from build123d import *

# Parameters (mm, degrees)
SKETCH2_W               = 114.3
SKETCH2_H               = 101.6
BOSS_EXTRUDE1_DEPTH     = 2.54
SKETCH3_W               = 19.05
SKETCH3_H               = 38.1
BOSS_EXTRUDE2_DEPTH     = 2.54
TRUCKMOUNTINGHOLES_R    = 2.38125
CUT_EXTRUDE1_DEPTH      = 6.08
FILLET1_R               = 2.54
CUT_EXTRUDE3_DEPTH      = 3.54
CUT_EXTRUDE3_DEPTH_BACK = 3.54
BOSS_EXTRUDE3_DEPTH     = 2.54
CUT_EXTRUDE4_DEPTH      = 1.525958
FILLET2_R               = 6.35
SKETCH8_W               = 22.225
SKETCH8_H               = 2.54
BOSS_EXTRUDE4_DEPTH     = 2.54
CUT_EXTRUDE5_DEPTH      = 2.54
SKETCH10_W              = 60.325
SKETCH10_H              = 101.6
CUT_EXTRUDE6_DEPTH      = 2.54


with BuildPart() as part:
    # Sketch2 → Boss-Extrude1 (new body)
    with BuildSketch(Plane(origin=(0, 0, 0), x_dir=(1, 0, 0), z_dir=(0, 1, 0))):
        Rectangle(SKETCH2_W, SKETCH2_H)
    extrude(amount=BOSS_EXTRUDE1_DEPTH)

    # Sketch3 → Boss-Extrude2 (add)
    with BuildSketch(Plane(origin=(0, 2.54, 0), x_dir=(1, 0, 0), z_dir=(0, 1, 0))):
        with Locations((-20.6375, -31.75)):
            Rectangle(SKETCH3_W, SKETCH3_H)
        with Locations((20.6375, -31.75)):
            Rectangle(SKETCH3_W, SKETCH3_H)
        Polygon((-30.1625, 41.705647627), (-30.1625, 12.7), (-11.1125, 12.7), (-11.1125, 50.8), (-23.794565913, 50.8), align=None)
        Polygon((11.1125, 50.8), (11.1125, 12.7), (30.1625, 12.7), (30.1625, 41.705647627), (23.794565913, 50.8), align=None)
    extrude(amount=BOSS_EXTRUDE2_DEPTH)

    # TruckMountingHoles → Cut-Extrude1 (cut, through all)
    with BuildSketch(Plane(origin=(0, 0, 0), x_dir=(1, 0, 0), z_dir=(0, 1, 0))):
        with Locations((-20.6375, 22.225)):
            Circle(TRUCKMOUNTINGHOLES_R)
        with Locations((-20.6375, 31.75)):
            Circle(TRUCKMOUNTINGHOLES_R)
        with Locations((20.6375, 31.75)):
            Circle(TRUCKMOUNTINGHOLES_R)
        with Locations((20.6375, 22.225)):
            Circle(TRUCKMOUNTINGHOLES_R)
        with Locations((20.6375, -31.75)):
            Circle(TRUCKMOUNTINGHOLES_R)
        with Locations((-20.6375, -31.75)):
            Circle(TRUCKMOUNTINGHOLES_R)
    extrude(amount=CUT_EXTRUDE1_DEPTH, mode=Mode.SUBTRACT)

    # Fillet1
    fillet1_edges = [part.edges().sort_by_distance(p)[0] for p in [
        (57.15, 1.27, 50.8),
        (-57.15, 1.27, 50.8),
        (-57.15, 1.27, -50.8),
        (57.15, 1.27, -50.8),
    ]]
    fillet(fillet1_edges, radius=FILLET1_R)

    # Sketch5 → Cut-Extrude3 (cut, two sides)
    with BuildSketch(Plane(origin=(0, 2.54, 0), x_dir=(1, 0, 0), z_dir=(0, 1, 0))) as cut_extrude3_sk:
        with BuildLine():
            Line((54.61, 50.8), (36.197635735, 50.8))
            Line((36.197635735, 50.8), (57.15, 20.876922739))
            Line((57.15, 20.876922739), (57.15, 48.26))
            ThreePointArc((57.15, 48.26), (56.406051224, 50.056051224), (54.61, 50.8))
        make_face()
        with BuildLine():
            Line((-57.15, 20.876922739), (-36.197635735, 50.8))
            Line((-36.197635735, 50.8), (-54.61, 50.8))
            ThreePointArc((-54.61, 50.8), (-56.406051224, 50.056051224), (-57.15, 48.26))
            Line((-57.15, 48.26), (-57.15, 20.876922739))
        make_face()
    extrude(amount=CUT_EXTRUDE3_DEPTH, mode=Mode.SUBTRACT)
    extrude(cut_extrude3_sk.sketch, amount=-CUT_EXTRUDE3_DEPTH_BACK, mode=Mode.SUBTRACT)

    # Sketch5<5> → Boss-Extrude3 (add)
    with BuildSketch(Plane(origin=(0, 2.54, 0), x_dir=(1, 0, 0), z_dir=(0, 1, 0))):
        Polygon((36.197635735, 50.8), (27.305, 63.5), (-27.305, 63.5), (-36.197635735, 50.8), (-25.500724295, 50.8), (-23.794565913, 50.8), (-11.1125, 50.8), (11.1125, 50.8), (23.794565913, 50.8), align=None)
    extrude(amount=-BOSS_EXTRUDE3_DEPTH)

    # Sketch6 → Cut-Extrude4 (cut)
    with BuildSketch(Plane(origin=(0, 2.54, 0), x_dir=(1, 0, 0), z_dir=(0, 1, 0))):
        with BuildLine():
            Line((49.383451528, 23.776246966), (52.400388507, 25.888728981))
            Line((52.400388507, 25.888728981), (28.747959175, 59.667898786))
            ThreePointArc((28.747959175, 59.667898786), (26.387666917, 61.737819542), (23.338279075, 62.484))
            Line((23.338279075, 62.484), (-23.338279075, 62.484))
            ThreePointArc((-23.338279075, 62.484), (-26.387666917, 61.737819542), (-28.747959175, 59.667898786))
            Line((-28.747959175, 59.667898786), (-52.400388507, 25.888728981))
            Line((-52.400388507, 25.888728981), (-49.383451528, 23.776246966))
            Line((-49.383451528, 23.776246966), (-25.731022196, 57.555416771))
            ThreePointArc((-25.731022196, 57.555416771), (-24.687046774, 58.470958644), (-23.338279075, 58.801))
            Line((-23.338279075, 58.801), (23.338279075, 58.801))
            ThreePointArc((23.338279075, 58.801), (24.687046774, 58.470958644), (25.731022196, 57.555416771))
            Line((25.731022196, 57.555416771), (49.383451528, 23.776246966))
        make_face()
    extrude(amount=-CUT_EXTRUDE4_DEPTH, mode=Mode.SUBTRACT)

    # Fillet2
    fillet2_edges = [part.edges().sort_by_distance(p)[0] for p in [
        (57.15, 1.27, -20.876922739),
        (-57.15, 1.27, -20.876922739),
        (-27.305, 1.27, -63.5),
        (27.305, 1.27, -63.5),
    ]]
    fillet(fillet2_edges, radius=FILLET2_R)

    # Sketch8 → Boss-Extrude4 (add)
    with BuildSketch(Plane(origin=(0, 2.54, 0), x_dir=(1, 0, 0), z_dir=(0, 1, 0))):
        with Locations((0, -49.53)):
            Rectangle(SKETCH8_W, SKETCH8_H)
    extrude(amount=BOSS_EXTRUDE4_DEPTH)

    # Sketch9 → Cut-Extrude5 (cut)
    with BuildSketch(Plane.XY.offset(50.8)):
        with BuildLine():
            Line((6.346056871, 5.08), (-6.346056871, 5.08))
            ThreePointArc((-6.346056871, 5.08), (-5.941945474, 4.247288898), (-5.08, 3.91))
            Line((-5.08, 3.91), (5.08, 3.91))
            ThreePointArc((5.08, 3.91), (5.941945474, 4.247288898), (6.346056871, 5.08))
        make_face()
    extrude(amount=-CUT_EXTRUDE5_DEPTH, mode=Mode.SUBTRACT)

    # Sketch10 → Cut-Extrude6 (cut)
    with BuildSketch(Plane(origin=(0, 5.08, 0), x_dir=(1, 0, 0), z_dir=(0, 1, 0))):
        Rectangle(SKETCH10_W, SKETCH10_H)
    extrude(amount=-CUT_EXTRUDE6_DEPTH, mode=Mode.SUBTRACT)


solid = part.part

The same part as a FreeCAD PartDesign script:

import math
import FreeCAD as App
import Part
import Sketcher
from FreeCAD import Vector
Q = App.Units.Quantity


def edges_at(feature, points):
    """Names of the edges that pass closest to the given points."""
    edges = feature.Shape.Edges
    near = lambda p: min(range(len(edges)), key=lambda i: edges[i].distToShape(Part.Vertex(*p))[0])
    return sorted({f"Edge{near(p) + 1}" for p in points})

doc = App.newDocument("Part")
params = doc.addObject("Spreadsheet::Sheet", "Params")
for row, (alias, value) in enumerate([
    ("sketch1_height", "4 in"),
    ("sketch1_width", "4.5 in"),
    ("pad1_length", "0.1 in"),
    ("sketch2_height", "1.5 in"),
    ("sketch2_width", "0.75 in"),
    ("pad2_length", "0.1 in"),
    ("sketch3_diameter", "0.1875 in"),
    ("fillet_radius", "0.1 in"),
    ("sketch4_radius", "0.1 in"),
    ("sketch5_width", "2.15 in"),
    ("pad3_length", "0.1 in"),
    ("sketch6_radius", "0.26 in"),
    ("sketch6_radius2", "0.115 in"),
    ("pocket3_length", "1.525958 mm"),
    ("fillet2_radius", "0.25 in"),
    ("sketch7_height", "0.1 in"),
    ("sketch7_width", "0.875 in"),
    ("pad4_length", "0.1 in"),
    ("sketch8_radius", "0.05 in"),
    ("sketch8_width", "0.4 in"),
    ("pocket4_length", "0.1 in"),
    ("sketch9_height", "4 in"),
    ("sketch9_width", "2.375 in"),
    ("pocket5_length", "0.1 in"),
], start=1):
    params.set(f"A{row}", alias)
    params.set(f"B{row}", "=" + value)
    params.setAlias(f"B{row}", alias)

body = doc.addObject("PartDesign::Body", "Body")

# Sketch on XZ plane
sketch1 = body.newObject("Sketcher::SketchObject", "Sketch")
sketch1.AttachmentSupport = (doc.getObject("XZ_Plane"), [""])
sketch1.MapMode = "FlatFace"
sketch1.addGeometry(Part.LineSegment(Vector(-57.15, -50.8, 0), Vector(-57.15, 50.8, 0)), False)
sketch1.addGeometry(Part.LineSegment(Vector(-57.15, 50.8, 0), Vector(57.15, 50.8, 0)), False)
sketch1.addGeometry(Part.LineSegment(Vector(57.15, 50.8, 0), Vector(57.15, -50.8, 0)), False)
sketch1.addGeometry(Part.LineSegment(Vector(57.15, -50.8, 0), Vector(-57.15, -50.8, 0)), False)
sketch1.addConstraint(Sketcher.Constraint("Coincident", 0, 2, 1, 1))
sketch1.addConstraint(Sketcher.Constraint("Coincident", 1, 2, 2, 1))
sketch1.addConstraint(Sketcher.Constraint("Coincident", 2, 2, 3, 1))
sketch1.addConstraint(Sketcher.Constraint("Coincident", 3, 2, 0, 1))
sketch1.addConstraint(Sketcher.Constraint("Vertical", 0))
sketch1.addConstraint(Sketcher.Constraint("Horizontal", 1))
sketch1.addConstraint(Sketcher.Constraint("Vertical", 2))
sketch1.addConstraint(Sketcher.Constraint("Horizontal", 3))
sketch1.addConstraint(Sketcher.Constraint("Symmetric", 0, 2, 2, 2, -1, 1))
sketch1.addConstraint(Sketcher.Constraint("DistanceY", 0, 1, 0, 2, Q("4 in")))
sketch1.addConstraint(Sketcher.Constraint("DistanceX", 1, 1, 1, 2, Q("4.5 in")))
sketch1.setExpression("Constraints[9]", "Params.sketch1_height")
sketch1.setExpression("Constraints[10]", "Params.sketch1_width")
pad1 = body.newObject("PartDesign::Pad", "Pad")
pad1.Profile = sketch1
pad1.setExpression("Length", "Params.pad1_length")
pad1.Reversed = True

# Sketch on XZ plane
sketch2 = body.newObject("Sketcher::SketchObject", "Sketch001")
sketch2.AttachmentSupport = (doc.getObject("XZ_Plane"), [""])
sketch2.MapMode = "FlatFace"
sketch2.AttachmentOffset = App.Placement(Vector(0, 0, -0.1 * 25.4), App.Rotation())
sketch2.addGeometry(Part.LineSegment(Vector(-30.1625, 12.7, 0), Vector(-30.1625, 50.8, 0)), False)
sketch2.addGeometry(Part.LineSegment(Vector(-30.1625, 50.8, 0), Vector(-11.1125, 50.8, 0)), False)
sketch2.addGeometry(Part.LineSegment(Vector(-11.1125, 50.8, 0), Vector(-11.1125, 12.7, 0)), False)
sketch2.addGeometry(Part.LineSegment(Vector(-11.1125, 12.7, 0), Vector(-30.1625, 12.7, 0)), False)
sketch2.addGeometry(Part.LineSegment(Vector(11.1125, 12.7, 0), Vector(11.1125, 50.8, 0)), False)
sketch2.addGeometry(Part.LineSegment(Vector(11.1125, 50.8, 0), Vector(30.1625, 50.8, 0)), False)
sketch2.addGeometry(Part.LineSegment(Vector(30.1625, 50.8, 0), Vector(30.1625, 12.7, 0)), False)
sketch2.addGeometry(Part.LineSegment(Vector(30.1625, 12.7, 0), Vector(11.1125, 12.7, 0)), False)
sketch2.addGeometry(Part.LineSegment(Vector(-30.1625, -41.705648, 0), Vector(-30.1625, -12.7, 0)), False)
sketch2.addGeometry(Part.LineSegment(Vector(-30.1625, -12.7, 0), Vector(-11.1125, -12.7, 0)), False)
sketch2.addGeometry(Part.LineSegment(Vector(-11.1125, -12.7, 0), Vector(-11.1125, -50.8, 0)), False)
sketch2.addGeometry(Part.LineSegment(Vector(-11.1125, -50.8, 0), Vector(-23.794566, -50.8, 0)), False)
sketch2.addGeometry(Part.LineSegment(Vector(-23.794566, -50.8, 0), Vector(-30.1625, -41.705648, 0)), False)
sketch2.addGeometry(Part.LineSegment(Vector(11.1125, -50.8, 0), Vector(11.1125, -12.7, 0)), False)
sketch2.addGeometry(Part.LineSegment(Vector(11.1125, -12.7, 0), Vector(30.1625, -12.7, 0)), False)
sketch2.addGeometry(Part.LineSegment(Vector(30.1625, -12.7, 0), Vector(30.1625, -41.705648, 0)), False)
sketch2.addGeometry(Part.LineSegment(Vector(30.1625, -41.705648, 0), Vector(23.794566, -50.8, 0)), False)
sketch2.addGeometry(Part.LineSegment(Vector(23.794566, -50.8, 0), Vector(11.1125, -50.8, 0)), False)
sketch2.addConstraint(Sketcher.Constraint("Coincident", 0, 2, 1, 1))
sketch2.addConstraint(Sketcher.Constraint("Coincident", 1, 2, 2, 1))
sketch2.addConstraint(Sketcher.Constraint("Coincident", 2, 2, 3, 1))
sketch2.addConstraint(Sketcher.Constraint("Coincident", 3, 2, 0, 1))
sketch2.addConstraint(Sketcher.Constraint("Coincident", 4, 2, 5, 1))
sketch2.addConstraint(Sketcher.Constraint("Coincident", 5, 2, 6, 1))
sketch2.addConstraint(Sketcher.Constraint("Coincident", 6, 2, 7, 1))
sketch2.addConstraint(Sketcher.Constraint("Coincident", 7, 2, 4, 1))
sketch2.addConstraint(Sketcher.Constraint("Coincident", 8, 2, 9, 1))
sketch2.addConstraint(Sketcher.Constraint("Coincident", 9, 2, 10, 1))
sketch2.addConstraint(Sketcher.Constraint("Coincident", 10, 2, 11, 1))
sketch2.addConstraint(Sketcher.Constraint("Coincident", 11, 2, 12, 1))
sketch2.addConstraint(Sketcher.Constraint("Coincident", 12, 2, 8, 1))
sketch2.addConstraint(Sketcher.Constraint("Coincident", 13, 2, 14, 1))
sketch2.addConstraint(Sketcher.Constraint("Coincident", 14, 2, 15, 1))
sketch2.addConstraint(Sketcher.Constraint("Coincident", 15, 2, 16, 1))
sketch2.addConstraint(Sketcher.Constraint("Coincident", 16, 2, 17, 1))
sketch2.addConstraint(Sketcher.Constraint("Coincident", 17, 2, 13, 1))
sketch2.addConstraint(Sketcher.Constraint("Vertical", 0))
sketch2.addConstraint(Sketcher.Constraint("Horizontal", 1))
sketch2.addConstraint(Sketcher.Constraint("Vertical", 2))
sketch2.addConstraint(Sketcher.Constraint("Horizontal", 3))
sketch2.addConstraint(Sketcher.Constraint("Vertical", 4))
sketch2.addConstraint(Sketcher.Constraint("Horizontal", 5))
sketch2.addConstraint(Sketcher.Constraint("Vertical", 6))
sketch2.addConstraint(Sketcher.Constraint("Horizontal", 7))
sketch2.addConstraint(Sketcher.Constraint("Vertical", 8))
sketch2.addConstraint(Sketcher.Constraint("Horizontal", 9))
sketch2.addConstraint(Sketcher.Constraint("Vertical", 10))
sketch2.addConstraint(Sketcher.Constraint("Horizontal", 11))
sketch2.addConstraint(Sketcher.Constraint("Vertical", 13))
sketch2.addConstraint(Sketcher.Constraint("Horizontal", 14))
sketch2.addConstraint(Sketcher.Constraint("Vertical", 15))
sketch2.addConstraint(Sketcher.Constraint("Horizontal", 17))
sketch2.addConstraint(Sketcher.Constraint("Symmetric", 6, 2, 8, 2, -1, 1))
sketch2.addConstraint(Sketcher.Constraint("Symmetric", 4, 2, 10, 2, -1, 1))
sketch2.addConstraint(Sketcher.Constraint("Symmetric", 2, 2, 13, 2, -1, 1))
sketch2.addConstraint(Sketcher.Constraint("Symmetric", 1, 2, 4, 2, -2))
sketch2.addConstraint(Sketcher.Constraint("Symmetric", 3, 2, 6, 2, -2))
sketch2.addConstraint(Sketcher.Constraint("Symmetric", 12, 2, 15, 2, -2))
sketch2.addConstraint(Sketcher.Constraint("Symmetric", 11, 2, 16, 2, -2))
sketch2.addConstraint(Sketcher.Constraint("DistanceY", 0, 1, 0, 2, Q("1.5 in")))
sketch2.addConstraint(Sketcher.Constraint("DistanceY", -1, 1, 0, 2, Q("2 in")))
sketch2.addConstraint(Sketcher.Constraint("Angle", 12, Q("125 deg")))
sketch2.addConstraint(Sketcher.Constraint("DistanceX", 1, 1, 1, 2, Q("0.75 in")))
sketch2.addConstraint(Sketcher.Constraint("DistanceX", 0, 2, -1, 1, Q("1.1875 in")))
sketch2.addConstraint(Sketcher.Constraint("DistanceX", 11, 2, 11, 1, Q("12.682066 mm")))
sketch2.setExpression("Constraints[41]", "Params.sketch2_height")
sketch2.setExpression("Constraints[44]", "Params.sketch2_width")
pad2 = body.newObject("PartDesign::Pad", "Pad001")
pad2.Profile = sketch2
pad2.setExpression("Length", "Params.pad2_length")
pad2.Reversed = True

# Sketch on XZ plane
sketch3 = body.newObject("Sketcher::SketchObject", "Sketch002")
sketch3.AttachmentSupport = (doc.getObject("XZ_Plane"), [""])
sketch3.MapMode = "FlatFace"
sketch3.addGeometry(Part.Circle(Vector(-20.6375, -22.225, 0), Vector(0, 0, 1), 2.38125), False)
sketch3.addGeometry(Part.Circle(Vector(-20.6375, -31.75, 0), Vector(0, 0, 1), 2.38125), False)
sketch3.addGeometry(Part.Circle(Vector(20.6375, -31.75, 0), Vector(0, 0, 1), 2.38125), False)
sketch3.addGeometry(Part.Circle(Vector(20.6375, -22.225, 0), Vector(0, 0, 1), 2.38125), False)
sketch3.addGeometry(Part.Circle(Vector(20.6375, 31.75, 0), Vector(0, 0, 1), 2.38125), False)
sketch3.addGeometry(Part.Circle(Vector(-20.6375, 31.75, 0), Vector(0, 0, 1), 2.38125), False)
sketch3.addConstraint(Sketcher.Constraint("Equal", 0, 1))
sketch3.addConstraint(Sketcher.Constraint("Equal", 1, 2))
sketch3.addConstraint(Sketcher.Constraint("Equal", 2, 3))
sketch3.addConstraint(Sketcher.Constraint("Equal", 3, 4))
sketch3.addConstraint(Sketcher.Constraint("Equal", 4, 5))
sketch3.addConstraint(Sketcher.Constraint("Symmetric", 1, 3, 4, 3, -1, 1))
sketch3.addConstraint(Sketcher.Constraint("Symmetric", 2, 3, 5, 3, -1, 1))
sketch3.addConstraint(Sketcher.Constraint("Symmetric", 1, 3, 2, 3, -2))
sketch3.addConstraint(Sketcher.Constraint("Symmetric", 0, 3, 3, 3, -2))
sketch3.addConstraint(Sketcher.Constraint("Vertical", 0, 3, 1, 3))
sketch3.addConstraint(Sketcher.Constraint("Diameter", 0, Q("0.1875 in")))
sketch3.addConstraint(Sketcher.Constraint("DistanceY", 2, 3, 4, 3, Q("2.5 in")))
sketch3.addConstraint(Sketcher.Constraint("DistanceX", 0, 3, -1, 1, Q("0.8125 in")))
sketch3.addConstraint(Sketcher.Constraint("DistanceY", 0, 3, -1, 1, Q("0.875 in")))
sketch3.setExpression("Constraints[10]", "Params.sketch3_diameter")
pocket1 = body.newObject("PartDesign::Pocket", "Pocket")
pocket1.Profile = sketch3
pocket1.Type = "ThroughAll"
doc.recompute()

fillet = body.newObject("PartDesign::Fillet", "Fillet")
fillet.Base = (pocket1, edges_at(pocket1, [
    (57.15, 1.27, 50.8),
    (-57.15, 1.27, 50.8),
    (-57.15, 1.27, -50.8),
    (57.15, 1.27, -50.8),
]))
fillet.setExpression("Radius", "Params.fillet_radius")

# Sketch on XZ plane
sketch4 = body.newObject("Sketcher::SketchObject", "Sketch003")
sketch4.AttachmentSupport = (doc.getObject("XZ_Plane"), [""])
sketch4.MapMode = "FlatFace"
sketch4.AttachmentOffset = App.Placement(Vector(0, 0, -0.1 * 25.4), App.Rotation())
sketch4.addGeometry(Part.LineSegment(Vector(54.61, -50.8, 0), Vector(36.197636, -50.8, 0)), False)
sketch4.addGeometry(Part.LineSegment(Vector(36.197636, -50.8, 0), Vector(57.15, -20.876923, 0)), False)
sketch4.addGeometry(Part.LineSegment(Vector(57.15, -20.876923, 0), Vector(57.15, -48.26, 0)), False)
sketch4.addGeometry(Part.ArcOfCircle(Part.Circle(Vector(54.61, -48.26, 0), Vector(0, 0, 1), 2.54), math.radians(-90), math.radians(0)), False)
sketch4.addGeometry(Part.LineSegment(Vector(-57.15, -20.876923, 0), Vector(-36.197636, -50.8, 0)), False)
sketch4.addGeometry(Part.LineSegment(Vector(-36.197636, -50.8, 0), Vector(-54.61, -50.8, 0)), False)
sketch4.addGeometry(Part.ArcOfCircle(Part.Circle(Vector(-54.61, -48.26, 0), Vector(0, 0, 1), 2.54), math.radians(-180), math.radians(-90)), False)
sketch4.addGeometry(Part.LineSegment(Vector(-57.15, -48.26, 0), Vector(-57.15, -20.876923, 0)), False)
sketch4.addConstraint(Sketcher.Constraint("Coincident", 0, 2, 1, 1))
sketch4.addConstraint(Sketcher.Constraint("Coincident", 1, 2, 2, 1))
sketch4.addConstraint(Sketcher.Constraint("Tangent", 2, 2, 3, 2))
sketch4.addConstraint(Sketcher.Constraint("Tangent", 3, 1, 0, 1))
sketch4.addConstraint(Sketcher.Constraint("Coincident", 4, 2, 5, 1))
sketch4.addConstraint(Sketcher.Constraint("Tangent", 5, 2, 6, 2))
sketch4.addConstraint(Sketcher.Constraint("Tangent", 6, 1, 7, 1))
sketch4.addConstraint(Sketcher.Constraint("Coincident", 7, 2, 4, 1))
sketch4.addConstraint(Sketcher.Constraint("Horizontal", 0))
sketch4.addConstraint(Sketcher.Constraint("Vertical", 2))
sketch4.addConstraint(Sketcher.Constraint("Horizontal", 5))
sketch4.addConstraint(Sketcher.Constraint("Vertical", 7))
sketch4.addConstraint(Sketcher.Constraint("Equal", 3, 6))
sketch4.addConstraint(Sketcher.Constraint("Symmetric", 3, 3, 6, 3, -2))
sketch4.addConstraint(Sketcher.Constraint("Horizontal", 1, 2, 7, 2))
sketch4.addConstraint(Sketcher.Constraint("Equal", 0, 5))
sketch4.addConstraint(Sketcher.Constraint("Radius", 3, Q("0.1 in")))
sketch4.addConstraint(Sketcher.Constraint("DistanceY", 0, 2, -1, 1, Q("2 in")))
sketch4.addConstraint(Sketcher.Constraint("Angle", 1, Q("55 deg")))
sketch4.addConstraint(Sketcher.Constraint("DistanceX", 6, 3, 3, 3, Q("4.3 in")))
sketch4.addConstraint(Sketcher.Constraint("DistanceX", 0, 2, 0, 1, Q("18.412364 mm")))
sketch4.setExpression("Constraints[16]", "Params.sketch4_radius")
pocket2 = body.newObject("PartDesign::Pocket", "Pocket001")
pocket2.Profile = sketch4
pocket2.Type = "ThroughAll"
pocket2.Midplane = True

# Sketch on XZ plane
sketch5 = body.newObject("Sketcher::SketchObject", "Sketch004")
sketch5.AttachmentSupport = (doc.getObject("XZ_Plane"), [""])
sketch5.MapMode = "FlatFace"
sketch5.AttachmentOffset = App.Placement(Vector(0, 0, -0.1 * 25.4), App.Rotation())
sketch5.addGeometry(Part.LineSegment(Vector(36.197636, -50.8, 0), Vector(27.305, -63.5, 0)), False)
sketch5.addGeometry(Part.LineSegment(Vector(27.305, -63.5, 0), Vector(-27.305, -63.5, 0)), False)
sketch5.addGeometry(Part.LineSegment(Vector(-27.305, -63.5, 0), Vector(-36.197636, -50.8, 0)), False)
sketch5.addGeometry(Part.LineSegment(Vector(-36.197636, -50.8, 0), Vector(36.197636, -50.8, 0)), False)
sketch5.addConstraint(Sketcher.Constraint("Coincident", 0, 2, 1, 1))
sketch5.addConstraint(Sketcher.Constraint("Coincident", 1, 2, 2, 1))
sketch5.addConstraint(Sketcher.Constraint("Coincident", 2, 2, 3, 1))
sketch5.addConstraint(Sketcher.Constraint("Coincident", 3, 2, 0, 1))
sketch5.addConstraint(Sketcher.Constraint("Horizontal", 1))
sketch5.addConstraint(Sketcher.Constraint("Horizontal", 3))
sketch5.addConstraint(Sketcher.Constraint("Equal", 0, 2))
sketch5.addConstraint(Sketcher.Constraint("DistanceY", 2, 2, -1, 1, Q("2 in")))
sketch5.addConstraint(Sketcher.Constraint("Angle", 0, Q("-125 deg")))
sketch5.addConstraint(Sketcher.Constraint("DistanceX", 1, 2, 1, 1, Q("2.15 in")))
sketch5.addConstraint(Sketcher.Constraint("DistanceY", 0, 2, -1, 1, Q("2.5 in")))
sketch5.addConstraint(Sketcher.Constraint("DistanceX", -1, 1, 0, 2, Q("1.075 in")))
sketch5.setExpression("Constraints[9]", "Params.sketch5_width")
pad3 = body.newObject("PartDesign::Pad", "Pad002")
pad3.Profile = sketch5
pad3.setExpression("Length", "Params.pad3_length")

# Sketch on XZ plane
sketch6 = body.newObject("Sketcher::SketchObject", "Sketch005")
sketch6.AttachmentSupport = (doc.getObject("XZ_Plane"), [""])
sketch6.MapMode = "FlatFace"
sketch6.AttachmentOffset = App.Placement(Vector(0, 0, -0.1 * 25.4), App.Rotation())
sketch6.addGeometry(Part.LineSegment(Vector(49.383452, -23.776247, 0), Vector(52.400389, -25.888729, 0)), False)
sketch6.addGeometry(Part.LineSegment(Vector(52.400389, -25.888729, 0), Vector(28.747959, -59.667899, 0)), False)
sketch6.addGeometry(Part.ArcOfCircle(Part.Circle(Vector(23.338279, -55.88, 0), Vector(0, 0, 1), 6.604), math.radians(-90), math.radians(-35)), False)
sketch6.addGeometry(Part.LineSegment(Vector(23.338279, -62.484, 0), Vector(-23.338279, -62.484, 0)), False)
sketch6.addGeometry(Part.ArcOfCircle(Part.Circle(Vector(-23.338279, -55.88, 0), Vector(0, 0, 1), 6.604), math.radians(-145), math.radians(-90)), False)
sketch6.addGeometry(Part.LineSegment(Vector(-28.747959, -59.667899, 0), Vector(-52.400389, -25.888729, 0)), False)
sketch6.addGeometry(Part.LineSegment(Vector(-52.400389, -25.888729, 0), Vector(-49.383452, -23.776247, 0)), False)
sketch6.addGeometry(Part.LineSegment(Vector(-49.383452, -23.776247, 0), Vector(-25.731022, -57.555417, 0)), False)
sketch6.addGeometry(Part.ArcOfCircle(Part.Circle(Vector(-23.338279, -55.88, 0), Vector(0, 0, 1), 2.921), math.radians(-145), math.radians(-90)), False)
sketch6.addGeometry(Part.LineSegment(Vector(-23.338279, -58.801, 0), Vector(23.338279, -58.801, 0)), False)
sketch6.addGeometry(Part.ArcOfCircle(Part.Circle(Vector(23.338279, -55.88, 0), Vector(0, 0, 1), 2.921), math.radians(-90), math.radians(-35)), False)
sketch6.addGeometry(Part.LineSegment(Vector(25.731022, -57.555417, 0), Vector(49.383452, -23.776247, 0)), False)
sketch6.addConstraint(Sketcher.Constraint("Coincident", 0, 2, 1, 1))
sketch6.addConstraint(Sketcher.Constraint("Tangent", 1, 2, 2, 2))
sketch6.addConstraint(Sketcher.Constraint("Tangent", 2, 1, 3, 1))
sketch6.addConstraint(Sketcher.Constraint("Tangent", 3, 2, 4, 2))
sketch6.addConstraint(Sketcher.Constraint("Tangent", 4, 1, 5, 1))
sketch6.addConstraint(Sketcher.Constraint("Coincident", 5, 2, 6, 1))
sketch6.addConstraint(Sketcher.Constraint("Coincident", 6, 2, 7, 1))
sketch6.addConstraint(Sketcher.Constraint("Tangent", 7, 2, 8, 1))
sketch6.addConstraint(Sketcher.Constraint("Tangent", 8, 2, 9, 1))
sketch6.addConstraint(Sketcher.Constraint("Tangent", 9, 2, 10, 1))
sketch6.addConstraint(Sketcher.Constraint("Tangent", 10, 2, 11, 1))
sketch6.addConstraint(Sketcher.Constraint("Coincident", 11, 2, 0, 1))
sketch6.addConstraint(Sketcher.Constraint("Horizontal", 3))
sketch6.addConstraint(Sketcher.Constraint("Horizontal", 9))
sketch6.addConstraint(Sketcher.Constraint("Coincident", 8, 3, 4, 3))
sketch6.addConstraint(Sketcher.Constraint("Coincident", 10, 3, 2, 3))
sketch6.addConstraint(Sketcher.Constraint("Equal", 2, 4))
sketch6.addConstraint(Sketcher.Constraint("Symmetric", 1, 2, 4, 1, -2))
sketch6.addConstraint(Sketcher.Constraint("Symmetric", 6, 2, 11, 2, -2))
sketch6.addConstraint(Sketcher.Constraint("Perpendicular", 0, 1))
sketch6.addConstraint(Sketcher.Constraint("Perpendicular", 5, 6))
sketch6.addConstraint(Sketcher.Constraint("Perpendicular", 6, 7))
sketch6.addConstraint(Sketcher.Constraint("Radius", 2, Q("0.26 in")))
sketch6.addConstraint(Sketcher.Constraint("Angle", 0, Q("-35 deg")))
sketch6.addConstraint(Sketcher.Constraint("Radius", 8, Q("0.115 in")))
sketch6.addConstraint(Sketcher.Constraint("DistanceY", 2, 3, -1, 1, Q("2.2 in")))
sketch6.addConstraint(Sketcher.Constraint("DistanceX", 3, 2, 3, 1, Q("46.676558 mm")))
sketch6.addConstraint(Sketcher.Constraint("DistanceX", -1, 1, 0, 2, Q("52.400389 mm")))
sketch6.setExpression("Constraints[22]", "Params.sketch6_radius")
sketch6.setExpression("Constraints[24]", "Params.sketch6_radius2")
pocket3 = body.newObject("PartDesign::Pocket", "Pocket002")
pocket3.Profile = sketch6
pocket3.setExpression("Length", "Params.pocket3_length")
pocket3.Reversed = True
doc.recompute()

fillet2 = body.newObject("PartDesign::Fillet", "Fillet001")
fillet2.Base = (pocket3, edges_at(pocket3, [
    (57.15, 1.27, -20.877),
    (-57.15, 1.27, -20.877),
    (-27.305, 1.27, -63.5),
    (27.305, 1.27, -63.5),
]))
fillet2.setExpression("Radius", "Params.fillet2_radius")

# Sketch on XZ plane
sketch7 = body.newObject("Sketcher::SketchObject", "Sketch006")
sketch7.AttachmentSupport = (doc.getObject("XZ_Plane"), [""])
sketch7.MapMode = "FlatFace"
sketch7.AttachmentOffset = App.Placement(Vector(0, 0, -0.1 * 25.4), App.Rotation())
sketch7.addGeometry(Part.LineSegment(Vector(-11.1125, 48.26, 0), Vector(-11.1125, 50.8, 0)), False)
sketch7.addGeometry(Part.LineSegment(Vector(-11.1125, 50.8, 0), Vector(11.1125, 50.8, 0)), False)
sketch7.addGeometry(Part.LineSegment(Vector(11.1125, 50.8, 0), Vector(11.1125, 48.26, 0)), False)
sketch7.addGeometry(Part.LineSegment(Vector(11.1125, 48.26, 0), Vector(-11.1125, 48.26, 0)), False)
sketch7.addConstraint(Sketcher.Constraint("Coincident", 0, 2, 1, 1))
sketch7.addConstraint(Sketcher.Constraint("Coincident", 1, 2, 2, 1))
sketch7.addConstraint(Sketcher.Constraint("Coincident", 2, 2, 3, 1))
sketch7.addConstraint(Sketcher.Constraint("Coincident", 3, 2, 0, 1))
sketch7.addConstraint(Sketcher.Constraint("Vertical", 0))
sketch7.addConstraint(Sketcher.Constraint("Horizontal", 1))
sketch7.addConstraint(Sketcher.Constraint("Vertical", 2))
sketch7.addConstraint(Sketcher.Constraint("Horizontal", 3))
sketch7.addConstraint(Sketcher.Constraint("DistanceY", 0, 1, 0, 2, Q("0.1 in")))
sketch7.addConstraint(Sketcher.Constraint("DistanceY", -1, 1, 0, 2, Q("2 in")))
sketch7.addConstraint(Sketcher.Constraint("DistanceX", 1, 1, 1, 2, Q("0.875 in")))
sketch7.addConstraint(Sketcher.Constraint("DistanceX", 0, 2, -1, 1, Q("0.4375 in")))
sketch7.setExpression("Constraints[8]", "Params.sketch7_height")
sketch7.setExpression("Constraints[10]", "Params.sketch7_width")
pad4 = body.newObject("PartDesign::Pad", "Pad003")
pad4.Profile = sketch7
pad4.setExpression("Length", "Params.pad4_length")
pad4.Reversed = True

# Sketch on XY plane
sketch8 = body.newObject("Sketcher::SketchObject", "Sketch007")
sketch8.AttachmentSupport = (doc.getObject("XY_Plane"), [""])
sketch8.MapMode = "FlatFace"
sketch8.AttachmentOffset = App.Placement(Vector(0, 0, 2 * 25.4), App.Rotation())
sketch8.addGeometry(Part.LineSegment(Vector(6.346057, 5.08, 0), Vector(-6.346057, 5.08, 0)), False)
sketch8.addGeometry(Part.ArcOfCircle(Part.Circle(Vector(-5.08, 5.18, 0), Vector(0, 0, 1), 1.27), math.radians(-175.483846), math.radians(-90)), False)
sketch8.addGeometry(Part.LineSegment(Vector(-5.08, 3.91, 0), Vector(5.08, 3.91, 0)), False)
sketch8.addGeometry(Part.ArcOfCircle(Part.Circle(Vector(5.08, 5.18, 0), Vector(0, 0, 1), 1.27), math.radians(-90), math.radians(-4.516154)), False)
sketch8.addConstraint(Sketcher.Constraint("Coincident", 0, 2, 1, 1))
sketch8.addConstraint(Sketcher.Constraint("Tangent", 1, 2, 2, 1))
sketch8.addConstraint(Sketcher.Constraint("Tangent", 2, 2, 3, 1))
sketch8.addConstraint(Sketcher.Constraint("Coincident", 3, 2, 0, 1))
sketch8.addConstraint(Sketcher.Constraint("Horizontal", 0))
sketch8.addConstraint(Sketcher.Constraint("Horizontal", 2))
sketch8.addConstraint(Sketcher.Constraint("Equal", 1, 3))
sketch8.addConstraint(Sketcher.Constraint("Radius", 1, Q("0.05 in")))
sketch8.addConstraint(Sketcher.Constraint("DistanceX", 2, 1, 2, 2, Q("0.4 in")))
sketch8.addConstraint(Sketcher.Constraint("DistanceX", 1, 3, -1, 1, Q("0.2 in")))
sketch8.addConstraint(Sketcher.Constraint("DistanceY", -1, 1, 0, 2, Q("0.2 in")))
sketch8.addConstraint(Sketcher.Constraint("DistanceY", -1, 1, 1, 3, Q("5.18 mm")))
sketch8.setExpression("Constraints[7]", "Params.sketch8_radius")
sketch8.setExpression("Constraints[8]", "Params.sketch8_width")
pocket4 = body.newObject("PartDesign::Pocket", "Pocket003")
pocket4.Profile = sketch8
pocket4.setExpression("Length", "Params.pocket4_length")

# Sketch on XZ plane
sketch9 = body.newObject("Sketcher::SketchObject", "Sketch008")
sketch9.AttachmentSupport = (doc.getObject("XZ_Plane"), [""])
sketch9.MapMode = "FlatFace"
sketch9.AttachmentOffset = App.Placement(Vector(0, 0, -0.2 * 25.4), App.Rotation())
sketch9.addGeometry(Part.LineSegment(Vector(-30.1625, -50.8, 0), Vector(-30.1625, 50.8, 0)), False)
sketch9.addGeometry(Part.LineSegment(Vector(-30.1625, 50.8, 0), Vector(30.1625, 50.8, 0)), False)
sketch9.addGeometry(Part.LineSegment(Vector(30.1625, 50.8, 0), Vector(30.1625, -50.8, 0)), False)
sketch9.addGeometry(Part.LineSegment(Vector(30.1625, -50.8, 0), Vector(-30.1625, -50.8, 0)), False)
sketch9.addConstraint(Sketcher.Constraint("Coincident", 0, 2, 1, 1))
sketch9.addConstraint(Sketcher.Constraint("Coincident", 1, 2, 2, 1))
sketch9.addConstraint(Sketcher.Constraint("Coincident", 2, 2, 3, 1))
sketch9.addConstraint(Sketcher.Constraint("Coincident", 3, 2, 0, 1))
sketch9.addConstraint(Sketcher.Constraint("Vertical", 0))
sketch9.addConstraint(Sketcher.Constraint("Horizontal", 1))
sketch9.addConstraint(Sketcher.Constraint("Vertical", 2))
sketch9.addConstraint(Sketcher.Constraint("Horizontal", 3))
sketch9.addConstraint(Sketcher.Constraint("Symmetric", 0, 2, 2, 2, -1, 1))
sketch9.addConstraint(Sketcher.Constraint("DistanceY", 0, 1, 0, 2, Q("4 in")))
sketch9.addConstraint(Sketcher.Constraint("DistanceX", 1, 1, 1, 2, Q("2.375 in")))
sketch9.setExpression("Constraints[9]", "Params.sketch9_height")
sketch9.setExpression("Constraints[10]", "Params.sketch9_width")
pocket5 = body.newObject("PartDesign::Pocket", "Pocket004")
pocket5.Profile = sketch9
pocket5.setExpression("Length", "Params.pocket5_length")
pocket5.Reversed = True

doc.recompute()
